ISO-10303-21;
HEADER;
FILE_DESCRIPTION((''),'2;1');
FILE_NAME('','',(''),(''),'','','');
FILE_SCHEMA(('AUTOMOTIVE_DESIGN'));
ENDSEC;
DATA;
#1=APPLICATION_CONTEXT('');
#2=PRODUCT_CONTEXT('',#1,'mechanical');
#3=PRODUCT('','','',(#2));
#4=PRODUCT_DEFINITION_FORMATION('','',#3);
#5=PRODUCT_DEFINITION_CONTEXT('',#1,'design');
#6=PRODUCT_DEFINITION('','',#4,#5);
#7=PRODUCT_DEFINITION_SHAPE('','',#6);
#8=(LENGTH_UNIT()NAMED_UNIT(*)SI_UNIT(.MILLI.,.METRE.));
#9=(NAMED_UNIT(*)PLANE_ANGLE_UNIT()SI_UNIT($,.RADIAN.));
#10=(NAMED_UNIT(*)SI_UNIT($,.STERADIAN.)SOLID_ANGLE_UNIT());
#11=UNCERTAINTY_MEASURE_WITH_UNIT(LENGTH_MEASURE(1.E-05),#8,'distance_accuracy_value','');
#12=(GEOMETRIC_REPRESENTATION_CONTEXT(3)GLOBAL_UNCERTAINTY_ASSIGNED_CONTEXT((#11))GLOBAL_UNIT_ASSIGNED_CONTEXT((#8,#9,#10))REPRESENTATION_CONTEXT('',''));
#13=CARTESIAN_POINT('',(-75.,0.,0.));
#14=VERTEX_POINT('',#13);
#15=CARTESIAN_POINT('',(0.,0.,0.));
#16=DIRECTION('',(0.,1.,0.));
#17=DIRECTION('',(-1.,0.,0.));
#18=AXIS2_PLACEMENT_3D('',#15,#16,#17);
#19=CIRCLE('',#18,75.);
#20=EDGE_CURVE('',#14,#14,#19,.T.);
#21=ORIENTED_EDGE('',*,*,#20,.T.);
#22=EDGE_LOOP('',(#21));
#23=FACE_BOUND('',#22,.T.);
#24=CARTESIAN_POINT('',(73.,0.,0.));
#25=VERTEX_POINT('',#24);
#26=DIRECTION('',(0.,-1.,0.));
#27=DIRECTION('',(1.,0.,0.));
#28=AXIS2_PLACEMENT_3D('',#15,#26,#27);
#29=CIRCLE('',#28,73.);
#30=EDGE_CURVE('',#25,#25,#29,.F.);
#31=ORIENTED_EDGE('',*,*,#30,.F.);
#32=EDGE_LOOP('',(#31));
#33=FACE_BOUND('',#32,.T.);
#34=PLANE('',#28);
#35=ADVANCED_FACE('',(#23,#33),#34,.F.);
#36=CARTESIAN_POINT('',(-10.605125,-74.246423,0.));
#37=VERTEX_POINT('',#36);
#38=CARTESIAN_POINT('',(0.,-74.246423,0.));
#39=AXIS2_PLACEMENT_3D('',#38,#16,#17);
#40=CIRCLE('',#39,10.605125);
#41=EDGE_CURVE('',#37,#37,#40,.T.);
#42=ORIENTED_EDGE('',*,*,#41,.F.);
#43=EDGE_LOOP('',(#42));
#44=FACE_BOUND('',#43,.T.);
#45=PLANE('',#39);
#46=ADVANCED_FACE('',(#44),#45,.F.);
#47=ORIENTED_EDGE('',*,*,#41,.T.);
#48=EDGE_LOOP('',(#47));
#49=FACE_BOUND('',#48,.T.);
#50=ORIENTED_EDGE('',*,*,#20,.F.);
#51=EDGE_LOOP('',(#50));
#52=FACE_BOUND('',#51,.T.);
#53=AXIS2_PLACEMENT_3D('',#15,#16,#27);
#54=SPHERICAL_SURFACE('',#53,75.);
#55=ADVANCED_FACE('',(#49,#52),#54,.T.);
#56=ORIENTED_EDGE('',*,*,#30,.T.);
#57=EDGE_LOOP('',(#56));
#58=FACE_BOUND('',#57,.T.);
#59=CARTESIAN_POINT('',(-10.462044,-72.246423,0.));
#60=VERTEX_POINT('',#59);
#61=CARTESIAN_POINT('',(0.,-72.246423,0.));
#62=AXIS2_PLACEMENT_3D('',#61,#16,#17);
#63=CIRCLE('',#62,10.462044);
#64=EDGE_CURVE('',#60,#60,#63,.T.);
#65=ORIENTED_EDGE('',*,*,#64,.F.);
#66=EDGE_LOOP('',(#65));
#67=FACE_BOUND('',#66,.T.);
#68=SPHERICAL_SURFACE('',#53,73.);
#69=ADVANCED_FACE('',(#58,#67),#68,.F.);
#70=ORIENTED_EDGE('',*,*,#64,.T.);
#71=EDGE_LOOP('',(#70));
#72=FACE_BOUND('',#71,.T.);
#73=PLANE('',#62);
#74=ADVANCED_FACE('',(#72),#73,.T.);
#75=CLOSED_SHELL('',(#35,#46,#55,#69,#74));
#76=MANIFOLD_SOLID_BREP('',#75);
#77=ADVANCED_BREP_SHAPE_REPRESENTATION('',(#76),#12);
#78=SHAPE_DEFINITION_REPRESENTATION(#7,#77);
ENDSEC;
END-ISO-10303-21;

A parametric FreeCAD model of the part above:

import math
import FreeCAD as App
import Part
import Sketcher
Q = App.Units.Quantity


def faces_at(feature, points):
    """Names of the faces that lie closest to the given points."""
    faces = feature.Shape.Faces
    near = lambda p: min(range(len(faces)), key=lambda i: faces[i].distToShape(Part.Vertex(*p))[0])
    return sorted({f"Face{near(p) + 1}" for p in points})

doc = App.newDocument("Part")
params = doc.addObject("Spreadsheet::Sheet", "Params")
for row, (alias, value) in enumerate([
    ("sketch1_radius", "75 mm"),
    ("revolution_angle", "360 deg"),
    ("thickness_wall", "2 mm"),
], start=1):
    params.set(f"A{row}", alias)
    params.set(f"B{row}", "=" + value)
    params.setAlias(f"B{row}", alias)

body = doc.addObject("PartDesign::Body", "Body")

# Sketch on XY plane
sketch1 = body.newObject("Sketcher::SketchObject", "Sketch")
sketch1.AttachmentSupport = (doc.getObject("XY_Plane"), [""])
sketch1.MapMode = "FlatFace"
sketch1.addGeometry([
    Part.LineSegment(App.Vector(75, 0, 0), App.Vector(0, 0, 0)),
    Part.LineSegment(App.Vector(0, 0, 0), App.Vector(0, -74, 0)),
    Part.LineSegment(App.Vector(0, -74, 0), App.Vector(11, -74, 0)),
    Part.ArcOfCircle(Part.Circle(App.Vector(0, 0, 0), App.Vector(0, 0, 1), 75), math.radians(-82), math.radians(0)),
], False)
sketch1.addConstraint([
    Sketcher.Constraint("Coincident", 0, 2, 1, 1),
    Sketcher.Constraint("Coincident", 1, 2, 2, 1),
    Sketcher.Constraint("Coincident", 2, 2, 3, 1),
    Sketcher.Constraint("Coincident", 3, 2, 0, 1),
    Sketcher.Constraint("Horizontal", 0),
    Sketcher.Constraint("Vertical", 1),
    Sketcher.Constraint("Horizontal", 2),
    Sketcher.Constraint("Coincident", 3, 3, -1, 1),
    Sketcher.Constraint("Coincident", 0, 2, -1, 1),
    Sketcher.Constraint("Radius", 3, Q("75 mm")),
    Sketcher.Constraint("DistanceX", 2, 1, 2, 2, Q("10.605125 mm")),
])
sketch1.setExpression("Constraints[9]", "Params.sketch1_radius")
revolution = body.newObject("PartDesign::Revolution", "Revolution")
revolution.Profile = sketch1
revolution.ReferenceAxis = (sketch1, ["V_Axis"])
revolution.setExpression("Angle", "Params.revolution_angle")
doc.recompute()

thickness = body.newObject("PartDesign::Thickness", "Thickness")
thickness.Base = (revolution, faces_at(revolution, [(0, 0, 0)]))
thickness.setExpression("Value", "Params.thickness_wall")
thickness.Reversed = True
thickness.Join = "Intersection"

doc.recompute()
